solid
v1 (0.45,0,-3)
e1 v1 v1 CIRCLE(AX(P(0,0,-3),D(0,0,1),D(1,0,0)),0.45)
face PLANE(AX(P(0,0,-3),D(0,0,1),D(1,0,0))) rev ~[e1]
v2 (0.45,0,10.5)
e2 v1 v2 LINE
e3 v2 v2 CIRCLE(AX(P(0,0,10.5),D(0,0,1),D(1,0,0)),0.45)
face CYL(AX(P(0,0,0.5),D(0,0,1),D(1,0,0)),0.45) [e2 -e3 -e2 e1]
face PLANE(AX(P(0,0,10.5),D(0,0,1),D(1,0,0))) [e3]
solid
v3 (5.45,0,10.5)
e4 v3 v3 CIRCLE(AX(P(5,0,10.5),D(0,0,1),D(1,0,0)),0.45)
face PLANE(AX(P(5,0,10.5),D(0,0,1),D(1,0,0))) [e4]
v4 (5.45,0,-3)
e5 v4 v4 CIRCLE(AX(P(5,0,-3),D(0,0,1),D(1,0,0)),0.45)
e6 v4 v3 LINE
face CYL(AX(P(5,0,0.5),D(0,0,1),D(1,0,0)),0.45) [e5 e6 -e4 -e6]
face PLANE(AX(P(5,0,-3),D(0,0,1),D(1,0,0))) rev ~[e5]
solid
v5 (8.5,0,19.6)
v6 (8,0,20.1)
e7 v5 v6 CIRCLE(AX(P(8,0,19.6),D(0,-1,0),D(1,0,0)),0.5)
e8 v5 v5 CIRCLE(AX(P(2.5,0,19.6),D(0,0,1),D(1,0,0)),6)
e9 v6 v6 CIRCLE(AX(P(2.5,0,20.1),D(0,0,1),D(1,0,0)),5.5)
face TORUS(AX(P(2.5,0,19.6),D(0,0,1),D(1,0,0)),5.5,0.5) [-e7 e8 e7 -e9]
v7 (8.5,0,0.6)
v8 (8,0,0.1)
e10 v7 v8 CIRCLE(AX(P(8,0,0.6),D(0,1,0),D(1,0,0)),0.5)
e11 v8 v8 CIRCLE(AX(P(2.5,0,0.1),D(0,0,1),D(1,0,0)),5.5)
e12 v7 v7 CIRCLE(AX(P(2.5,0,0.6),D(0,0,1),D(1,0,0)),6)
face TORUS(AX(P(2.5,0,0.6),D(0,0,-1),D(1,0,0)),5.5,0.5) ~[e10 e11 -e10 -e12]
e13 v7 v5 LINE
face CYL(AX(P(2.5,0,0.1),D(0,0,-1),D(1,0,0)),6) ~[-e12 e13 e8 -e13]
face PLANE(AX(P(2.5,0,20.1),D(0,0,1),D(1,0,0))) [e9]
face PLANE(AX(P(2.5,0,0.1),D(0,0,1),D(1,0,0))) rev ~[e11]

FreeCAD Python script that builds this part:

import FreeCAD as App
import Part
import Sketcher


def edges_at(feature, points):
    """Names of the edges that pass closest to the given points."""
    edges = feature.Shape.Edges
    near = lambda p: min(range(len(edges)), key=lambda i: edges[i].distToShape(Part.Vertex(*p))[0])
    return sorted({f"Edge{near(p) + 1}" for p in points})

doc = App.newDocument("Part")
body = doc.addObject("PartDesign::Body", "Body")
body.AllowCompound = True

sketch1 = doc.addObject("Sketcher::SketchObject", "Sketch")
body.addObject(sketch1)
sketch1.AttachmentSupport = (doc.XY_Plane, [""])
sketch1.MapMode = "FlatFace"
sketch1.AttachmentOffset = App.Placement(App.Vector(0, 0, 0.5), App.Rotation())
sketch1.addGeometry([
    Part.Circle(App.Vector(0, 0, 0), App.Vector(0, 0, 1), 0.45),
    Part.Circle(App.Vector(5, 0, 0), App.Vector(0, 0, 1), 0.45),
], False)
sketch1.addConstraint([
    Sketcher.Constraint("Coincident", 0, 3, -1, 1),
    Sketcher.Constraint("Equal", 0, 1),
    Sketcher.Constraint("PointOnObject", 1, 3, -1),
    Sketcher.Constraint("Diameter", 0, 0.9),
    Sketcher.Constraint("DistanceX", -1, 1, 1, 3, 5.0),
])
pad1 = doc.addObject("PartDesign::Pad", "Pad")
body.addObject(pad1)
pad1.Profile = sketch1
pad1.Type = "TwoLengths"
pad1.Length = 10
pad1.Length2 = 3.5
body2 = doc.addObject("PartDesign::Body", "Body001")

sketch2 = doc.addObject("Sketcher::SketchObject", "Sketch001")
body2.addObject(sketch2)
sketch2.AttachmentSupport = (doc.getObject("XY_Plane001"), [""])
sketch2.MapMode = "FlatFace"
sketch2.AttachmentOffset = App.Placement(App.Vector(0, 0, 0.1), App.Rotation())
sketch2.addGeometry(Part.Circle(App.Vector(2.5, 0, 0), App.Vector(0, 0, 1), 6), False)
sketch2.addConstraint([
    Sketcher.Constraint("PointOnObject", 0, 3, -1),
    Sketcher.Constraint("Diameter", 0, 12.0),
    Sketcher.Constraint("DistanceX", -1, 1, 0, 3, 2.5),
])
pad2 = doc.addObject("PartDesign::Pad", "Pad001")
body2.addObject(pad2)
pad2.Profile = sketch2
pad2.Length = 20
doc.recompute()

fillet = doc.addObject("PartDesign::Fillet", "Fillet")
body2.addObject(fillet)
fillet.Base = (pad2, edges_at(pad2, [(-3.5, 0, 0.1), (-3.5, 0, 20.1)]))
fillet.Radius = 0.5

doc.recompute()
